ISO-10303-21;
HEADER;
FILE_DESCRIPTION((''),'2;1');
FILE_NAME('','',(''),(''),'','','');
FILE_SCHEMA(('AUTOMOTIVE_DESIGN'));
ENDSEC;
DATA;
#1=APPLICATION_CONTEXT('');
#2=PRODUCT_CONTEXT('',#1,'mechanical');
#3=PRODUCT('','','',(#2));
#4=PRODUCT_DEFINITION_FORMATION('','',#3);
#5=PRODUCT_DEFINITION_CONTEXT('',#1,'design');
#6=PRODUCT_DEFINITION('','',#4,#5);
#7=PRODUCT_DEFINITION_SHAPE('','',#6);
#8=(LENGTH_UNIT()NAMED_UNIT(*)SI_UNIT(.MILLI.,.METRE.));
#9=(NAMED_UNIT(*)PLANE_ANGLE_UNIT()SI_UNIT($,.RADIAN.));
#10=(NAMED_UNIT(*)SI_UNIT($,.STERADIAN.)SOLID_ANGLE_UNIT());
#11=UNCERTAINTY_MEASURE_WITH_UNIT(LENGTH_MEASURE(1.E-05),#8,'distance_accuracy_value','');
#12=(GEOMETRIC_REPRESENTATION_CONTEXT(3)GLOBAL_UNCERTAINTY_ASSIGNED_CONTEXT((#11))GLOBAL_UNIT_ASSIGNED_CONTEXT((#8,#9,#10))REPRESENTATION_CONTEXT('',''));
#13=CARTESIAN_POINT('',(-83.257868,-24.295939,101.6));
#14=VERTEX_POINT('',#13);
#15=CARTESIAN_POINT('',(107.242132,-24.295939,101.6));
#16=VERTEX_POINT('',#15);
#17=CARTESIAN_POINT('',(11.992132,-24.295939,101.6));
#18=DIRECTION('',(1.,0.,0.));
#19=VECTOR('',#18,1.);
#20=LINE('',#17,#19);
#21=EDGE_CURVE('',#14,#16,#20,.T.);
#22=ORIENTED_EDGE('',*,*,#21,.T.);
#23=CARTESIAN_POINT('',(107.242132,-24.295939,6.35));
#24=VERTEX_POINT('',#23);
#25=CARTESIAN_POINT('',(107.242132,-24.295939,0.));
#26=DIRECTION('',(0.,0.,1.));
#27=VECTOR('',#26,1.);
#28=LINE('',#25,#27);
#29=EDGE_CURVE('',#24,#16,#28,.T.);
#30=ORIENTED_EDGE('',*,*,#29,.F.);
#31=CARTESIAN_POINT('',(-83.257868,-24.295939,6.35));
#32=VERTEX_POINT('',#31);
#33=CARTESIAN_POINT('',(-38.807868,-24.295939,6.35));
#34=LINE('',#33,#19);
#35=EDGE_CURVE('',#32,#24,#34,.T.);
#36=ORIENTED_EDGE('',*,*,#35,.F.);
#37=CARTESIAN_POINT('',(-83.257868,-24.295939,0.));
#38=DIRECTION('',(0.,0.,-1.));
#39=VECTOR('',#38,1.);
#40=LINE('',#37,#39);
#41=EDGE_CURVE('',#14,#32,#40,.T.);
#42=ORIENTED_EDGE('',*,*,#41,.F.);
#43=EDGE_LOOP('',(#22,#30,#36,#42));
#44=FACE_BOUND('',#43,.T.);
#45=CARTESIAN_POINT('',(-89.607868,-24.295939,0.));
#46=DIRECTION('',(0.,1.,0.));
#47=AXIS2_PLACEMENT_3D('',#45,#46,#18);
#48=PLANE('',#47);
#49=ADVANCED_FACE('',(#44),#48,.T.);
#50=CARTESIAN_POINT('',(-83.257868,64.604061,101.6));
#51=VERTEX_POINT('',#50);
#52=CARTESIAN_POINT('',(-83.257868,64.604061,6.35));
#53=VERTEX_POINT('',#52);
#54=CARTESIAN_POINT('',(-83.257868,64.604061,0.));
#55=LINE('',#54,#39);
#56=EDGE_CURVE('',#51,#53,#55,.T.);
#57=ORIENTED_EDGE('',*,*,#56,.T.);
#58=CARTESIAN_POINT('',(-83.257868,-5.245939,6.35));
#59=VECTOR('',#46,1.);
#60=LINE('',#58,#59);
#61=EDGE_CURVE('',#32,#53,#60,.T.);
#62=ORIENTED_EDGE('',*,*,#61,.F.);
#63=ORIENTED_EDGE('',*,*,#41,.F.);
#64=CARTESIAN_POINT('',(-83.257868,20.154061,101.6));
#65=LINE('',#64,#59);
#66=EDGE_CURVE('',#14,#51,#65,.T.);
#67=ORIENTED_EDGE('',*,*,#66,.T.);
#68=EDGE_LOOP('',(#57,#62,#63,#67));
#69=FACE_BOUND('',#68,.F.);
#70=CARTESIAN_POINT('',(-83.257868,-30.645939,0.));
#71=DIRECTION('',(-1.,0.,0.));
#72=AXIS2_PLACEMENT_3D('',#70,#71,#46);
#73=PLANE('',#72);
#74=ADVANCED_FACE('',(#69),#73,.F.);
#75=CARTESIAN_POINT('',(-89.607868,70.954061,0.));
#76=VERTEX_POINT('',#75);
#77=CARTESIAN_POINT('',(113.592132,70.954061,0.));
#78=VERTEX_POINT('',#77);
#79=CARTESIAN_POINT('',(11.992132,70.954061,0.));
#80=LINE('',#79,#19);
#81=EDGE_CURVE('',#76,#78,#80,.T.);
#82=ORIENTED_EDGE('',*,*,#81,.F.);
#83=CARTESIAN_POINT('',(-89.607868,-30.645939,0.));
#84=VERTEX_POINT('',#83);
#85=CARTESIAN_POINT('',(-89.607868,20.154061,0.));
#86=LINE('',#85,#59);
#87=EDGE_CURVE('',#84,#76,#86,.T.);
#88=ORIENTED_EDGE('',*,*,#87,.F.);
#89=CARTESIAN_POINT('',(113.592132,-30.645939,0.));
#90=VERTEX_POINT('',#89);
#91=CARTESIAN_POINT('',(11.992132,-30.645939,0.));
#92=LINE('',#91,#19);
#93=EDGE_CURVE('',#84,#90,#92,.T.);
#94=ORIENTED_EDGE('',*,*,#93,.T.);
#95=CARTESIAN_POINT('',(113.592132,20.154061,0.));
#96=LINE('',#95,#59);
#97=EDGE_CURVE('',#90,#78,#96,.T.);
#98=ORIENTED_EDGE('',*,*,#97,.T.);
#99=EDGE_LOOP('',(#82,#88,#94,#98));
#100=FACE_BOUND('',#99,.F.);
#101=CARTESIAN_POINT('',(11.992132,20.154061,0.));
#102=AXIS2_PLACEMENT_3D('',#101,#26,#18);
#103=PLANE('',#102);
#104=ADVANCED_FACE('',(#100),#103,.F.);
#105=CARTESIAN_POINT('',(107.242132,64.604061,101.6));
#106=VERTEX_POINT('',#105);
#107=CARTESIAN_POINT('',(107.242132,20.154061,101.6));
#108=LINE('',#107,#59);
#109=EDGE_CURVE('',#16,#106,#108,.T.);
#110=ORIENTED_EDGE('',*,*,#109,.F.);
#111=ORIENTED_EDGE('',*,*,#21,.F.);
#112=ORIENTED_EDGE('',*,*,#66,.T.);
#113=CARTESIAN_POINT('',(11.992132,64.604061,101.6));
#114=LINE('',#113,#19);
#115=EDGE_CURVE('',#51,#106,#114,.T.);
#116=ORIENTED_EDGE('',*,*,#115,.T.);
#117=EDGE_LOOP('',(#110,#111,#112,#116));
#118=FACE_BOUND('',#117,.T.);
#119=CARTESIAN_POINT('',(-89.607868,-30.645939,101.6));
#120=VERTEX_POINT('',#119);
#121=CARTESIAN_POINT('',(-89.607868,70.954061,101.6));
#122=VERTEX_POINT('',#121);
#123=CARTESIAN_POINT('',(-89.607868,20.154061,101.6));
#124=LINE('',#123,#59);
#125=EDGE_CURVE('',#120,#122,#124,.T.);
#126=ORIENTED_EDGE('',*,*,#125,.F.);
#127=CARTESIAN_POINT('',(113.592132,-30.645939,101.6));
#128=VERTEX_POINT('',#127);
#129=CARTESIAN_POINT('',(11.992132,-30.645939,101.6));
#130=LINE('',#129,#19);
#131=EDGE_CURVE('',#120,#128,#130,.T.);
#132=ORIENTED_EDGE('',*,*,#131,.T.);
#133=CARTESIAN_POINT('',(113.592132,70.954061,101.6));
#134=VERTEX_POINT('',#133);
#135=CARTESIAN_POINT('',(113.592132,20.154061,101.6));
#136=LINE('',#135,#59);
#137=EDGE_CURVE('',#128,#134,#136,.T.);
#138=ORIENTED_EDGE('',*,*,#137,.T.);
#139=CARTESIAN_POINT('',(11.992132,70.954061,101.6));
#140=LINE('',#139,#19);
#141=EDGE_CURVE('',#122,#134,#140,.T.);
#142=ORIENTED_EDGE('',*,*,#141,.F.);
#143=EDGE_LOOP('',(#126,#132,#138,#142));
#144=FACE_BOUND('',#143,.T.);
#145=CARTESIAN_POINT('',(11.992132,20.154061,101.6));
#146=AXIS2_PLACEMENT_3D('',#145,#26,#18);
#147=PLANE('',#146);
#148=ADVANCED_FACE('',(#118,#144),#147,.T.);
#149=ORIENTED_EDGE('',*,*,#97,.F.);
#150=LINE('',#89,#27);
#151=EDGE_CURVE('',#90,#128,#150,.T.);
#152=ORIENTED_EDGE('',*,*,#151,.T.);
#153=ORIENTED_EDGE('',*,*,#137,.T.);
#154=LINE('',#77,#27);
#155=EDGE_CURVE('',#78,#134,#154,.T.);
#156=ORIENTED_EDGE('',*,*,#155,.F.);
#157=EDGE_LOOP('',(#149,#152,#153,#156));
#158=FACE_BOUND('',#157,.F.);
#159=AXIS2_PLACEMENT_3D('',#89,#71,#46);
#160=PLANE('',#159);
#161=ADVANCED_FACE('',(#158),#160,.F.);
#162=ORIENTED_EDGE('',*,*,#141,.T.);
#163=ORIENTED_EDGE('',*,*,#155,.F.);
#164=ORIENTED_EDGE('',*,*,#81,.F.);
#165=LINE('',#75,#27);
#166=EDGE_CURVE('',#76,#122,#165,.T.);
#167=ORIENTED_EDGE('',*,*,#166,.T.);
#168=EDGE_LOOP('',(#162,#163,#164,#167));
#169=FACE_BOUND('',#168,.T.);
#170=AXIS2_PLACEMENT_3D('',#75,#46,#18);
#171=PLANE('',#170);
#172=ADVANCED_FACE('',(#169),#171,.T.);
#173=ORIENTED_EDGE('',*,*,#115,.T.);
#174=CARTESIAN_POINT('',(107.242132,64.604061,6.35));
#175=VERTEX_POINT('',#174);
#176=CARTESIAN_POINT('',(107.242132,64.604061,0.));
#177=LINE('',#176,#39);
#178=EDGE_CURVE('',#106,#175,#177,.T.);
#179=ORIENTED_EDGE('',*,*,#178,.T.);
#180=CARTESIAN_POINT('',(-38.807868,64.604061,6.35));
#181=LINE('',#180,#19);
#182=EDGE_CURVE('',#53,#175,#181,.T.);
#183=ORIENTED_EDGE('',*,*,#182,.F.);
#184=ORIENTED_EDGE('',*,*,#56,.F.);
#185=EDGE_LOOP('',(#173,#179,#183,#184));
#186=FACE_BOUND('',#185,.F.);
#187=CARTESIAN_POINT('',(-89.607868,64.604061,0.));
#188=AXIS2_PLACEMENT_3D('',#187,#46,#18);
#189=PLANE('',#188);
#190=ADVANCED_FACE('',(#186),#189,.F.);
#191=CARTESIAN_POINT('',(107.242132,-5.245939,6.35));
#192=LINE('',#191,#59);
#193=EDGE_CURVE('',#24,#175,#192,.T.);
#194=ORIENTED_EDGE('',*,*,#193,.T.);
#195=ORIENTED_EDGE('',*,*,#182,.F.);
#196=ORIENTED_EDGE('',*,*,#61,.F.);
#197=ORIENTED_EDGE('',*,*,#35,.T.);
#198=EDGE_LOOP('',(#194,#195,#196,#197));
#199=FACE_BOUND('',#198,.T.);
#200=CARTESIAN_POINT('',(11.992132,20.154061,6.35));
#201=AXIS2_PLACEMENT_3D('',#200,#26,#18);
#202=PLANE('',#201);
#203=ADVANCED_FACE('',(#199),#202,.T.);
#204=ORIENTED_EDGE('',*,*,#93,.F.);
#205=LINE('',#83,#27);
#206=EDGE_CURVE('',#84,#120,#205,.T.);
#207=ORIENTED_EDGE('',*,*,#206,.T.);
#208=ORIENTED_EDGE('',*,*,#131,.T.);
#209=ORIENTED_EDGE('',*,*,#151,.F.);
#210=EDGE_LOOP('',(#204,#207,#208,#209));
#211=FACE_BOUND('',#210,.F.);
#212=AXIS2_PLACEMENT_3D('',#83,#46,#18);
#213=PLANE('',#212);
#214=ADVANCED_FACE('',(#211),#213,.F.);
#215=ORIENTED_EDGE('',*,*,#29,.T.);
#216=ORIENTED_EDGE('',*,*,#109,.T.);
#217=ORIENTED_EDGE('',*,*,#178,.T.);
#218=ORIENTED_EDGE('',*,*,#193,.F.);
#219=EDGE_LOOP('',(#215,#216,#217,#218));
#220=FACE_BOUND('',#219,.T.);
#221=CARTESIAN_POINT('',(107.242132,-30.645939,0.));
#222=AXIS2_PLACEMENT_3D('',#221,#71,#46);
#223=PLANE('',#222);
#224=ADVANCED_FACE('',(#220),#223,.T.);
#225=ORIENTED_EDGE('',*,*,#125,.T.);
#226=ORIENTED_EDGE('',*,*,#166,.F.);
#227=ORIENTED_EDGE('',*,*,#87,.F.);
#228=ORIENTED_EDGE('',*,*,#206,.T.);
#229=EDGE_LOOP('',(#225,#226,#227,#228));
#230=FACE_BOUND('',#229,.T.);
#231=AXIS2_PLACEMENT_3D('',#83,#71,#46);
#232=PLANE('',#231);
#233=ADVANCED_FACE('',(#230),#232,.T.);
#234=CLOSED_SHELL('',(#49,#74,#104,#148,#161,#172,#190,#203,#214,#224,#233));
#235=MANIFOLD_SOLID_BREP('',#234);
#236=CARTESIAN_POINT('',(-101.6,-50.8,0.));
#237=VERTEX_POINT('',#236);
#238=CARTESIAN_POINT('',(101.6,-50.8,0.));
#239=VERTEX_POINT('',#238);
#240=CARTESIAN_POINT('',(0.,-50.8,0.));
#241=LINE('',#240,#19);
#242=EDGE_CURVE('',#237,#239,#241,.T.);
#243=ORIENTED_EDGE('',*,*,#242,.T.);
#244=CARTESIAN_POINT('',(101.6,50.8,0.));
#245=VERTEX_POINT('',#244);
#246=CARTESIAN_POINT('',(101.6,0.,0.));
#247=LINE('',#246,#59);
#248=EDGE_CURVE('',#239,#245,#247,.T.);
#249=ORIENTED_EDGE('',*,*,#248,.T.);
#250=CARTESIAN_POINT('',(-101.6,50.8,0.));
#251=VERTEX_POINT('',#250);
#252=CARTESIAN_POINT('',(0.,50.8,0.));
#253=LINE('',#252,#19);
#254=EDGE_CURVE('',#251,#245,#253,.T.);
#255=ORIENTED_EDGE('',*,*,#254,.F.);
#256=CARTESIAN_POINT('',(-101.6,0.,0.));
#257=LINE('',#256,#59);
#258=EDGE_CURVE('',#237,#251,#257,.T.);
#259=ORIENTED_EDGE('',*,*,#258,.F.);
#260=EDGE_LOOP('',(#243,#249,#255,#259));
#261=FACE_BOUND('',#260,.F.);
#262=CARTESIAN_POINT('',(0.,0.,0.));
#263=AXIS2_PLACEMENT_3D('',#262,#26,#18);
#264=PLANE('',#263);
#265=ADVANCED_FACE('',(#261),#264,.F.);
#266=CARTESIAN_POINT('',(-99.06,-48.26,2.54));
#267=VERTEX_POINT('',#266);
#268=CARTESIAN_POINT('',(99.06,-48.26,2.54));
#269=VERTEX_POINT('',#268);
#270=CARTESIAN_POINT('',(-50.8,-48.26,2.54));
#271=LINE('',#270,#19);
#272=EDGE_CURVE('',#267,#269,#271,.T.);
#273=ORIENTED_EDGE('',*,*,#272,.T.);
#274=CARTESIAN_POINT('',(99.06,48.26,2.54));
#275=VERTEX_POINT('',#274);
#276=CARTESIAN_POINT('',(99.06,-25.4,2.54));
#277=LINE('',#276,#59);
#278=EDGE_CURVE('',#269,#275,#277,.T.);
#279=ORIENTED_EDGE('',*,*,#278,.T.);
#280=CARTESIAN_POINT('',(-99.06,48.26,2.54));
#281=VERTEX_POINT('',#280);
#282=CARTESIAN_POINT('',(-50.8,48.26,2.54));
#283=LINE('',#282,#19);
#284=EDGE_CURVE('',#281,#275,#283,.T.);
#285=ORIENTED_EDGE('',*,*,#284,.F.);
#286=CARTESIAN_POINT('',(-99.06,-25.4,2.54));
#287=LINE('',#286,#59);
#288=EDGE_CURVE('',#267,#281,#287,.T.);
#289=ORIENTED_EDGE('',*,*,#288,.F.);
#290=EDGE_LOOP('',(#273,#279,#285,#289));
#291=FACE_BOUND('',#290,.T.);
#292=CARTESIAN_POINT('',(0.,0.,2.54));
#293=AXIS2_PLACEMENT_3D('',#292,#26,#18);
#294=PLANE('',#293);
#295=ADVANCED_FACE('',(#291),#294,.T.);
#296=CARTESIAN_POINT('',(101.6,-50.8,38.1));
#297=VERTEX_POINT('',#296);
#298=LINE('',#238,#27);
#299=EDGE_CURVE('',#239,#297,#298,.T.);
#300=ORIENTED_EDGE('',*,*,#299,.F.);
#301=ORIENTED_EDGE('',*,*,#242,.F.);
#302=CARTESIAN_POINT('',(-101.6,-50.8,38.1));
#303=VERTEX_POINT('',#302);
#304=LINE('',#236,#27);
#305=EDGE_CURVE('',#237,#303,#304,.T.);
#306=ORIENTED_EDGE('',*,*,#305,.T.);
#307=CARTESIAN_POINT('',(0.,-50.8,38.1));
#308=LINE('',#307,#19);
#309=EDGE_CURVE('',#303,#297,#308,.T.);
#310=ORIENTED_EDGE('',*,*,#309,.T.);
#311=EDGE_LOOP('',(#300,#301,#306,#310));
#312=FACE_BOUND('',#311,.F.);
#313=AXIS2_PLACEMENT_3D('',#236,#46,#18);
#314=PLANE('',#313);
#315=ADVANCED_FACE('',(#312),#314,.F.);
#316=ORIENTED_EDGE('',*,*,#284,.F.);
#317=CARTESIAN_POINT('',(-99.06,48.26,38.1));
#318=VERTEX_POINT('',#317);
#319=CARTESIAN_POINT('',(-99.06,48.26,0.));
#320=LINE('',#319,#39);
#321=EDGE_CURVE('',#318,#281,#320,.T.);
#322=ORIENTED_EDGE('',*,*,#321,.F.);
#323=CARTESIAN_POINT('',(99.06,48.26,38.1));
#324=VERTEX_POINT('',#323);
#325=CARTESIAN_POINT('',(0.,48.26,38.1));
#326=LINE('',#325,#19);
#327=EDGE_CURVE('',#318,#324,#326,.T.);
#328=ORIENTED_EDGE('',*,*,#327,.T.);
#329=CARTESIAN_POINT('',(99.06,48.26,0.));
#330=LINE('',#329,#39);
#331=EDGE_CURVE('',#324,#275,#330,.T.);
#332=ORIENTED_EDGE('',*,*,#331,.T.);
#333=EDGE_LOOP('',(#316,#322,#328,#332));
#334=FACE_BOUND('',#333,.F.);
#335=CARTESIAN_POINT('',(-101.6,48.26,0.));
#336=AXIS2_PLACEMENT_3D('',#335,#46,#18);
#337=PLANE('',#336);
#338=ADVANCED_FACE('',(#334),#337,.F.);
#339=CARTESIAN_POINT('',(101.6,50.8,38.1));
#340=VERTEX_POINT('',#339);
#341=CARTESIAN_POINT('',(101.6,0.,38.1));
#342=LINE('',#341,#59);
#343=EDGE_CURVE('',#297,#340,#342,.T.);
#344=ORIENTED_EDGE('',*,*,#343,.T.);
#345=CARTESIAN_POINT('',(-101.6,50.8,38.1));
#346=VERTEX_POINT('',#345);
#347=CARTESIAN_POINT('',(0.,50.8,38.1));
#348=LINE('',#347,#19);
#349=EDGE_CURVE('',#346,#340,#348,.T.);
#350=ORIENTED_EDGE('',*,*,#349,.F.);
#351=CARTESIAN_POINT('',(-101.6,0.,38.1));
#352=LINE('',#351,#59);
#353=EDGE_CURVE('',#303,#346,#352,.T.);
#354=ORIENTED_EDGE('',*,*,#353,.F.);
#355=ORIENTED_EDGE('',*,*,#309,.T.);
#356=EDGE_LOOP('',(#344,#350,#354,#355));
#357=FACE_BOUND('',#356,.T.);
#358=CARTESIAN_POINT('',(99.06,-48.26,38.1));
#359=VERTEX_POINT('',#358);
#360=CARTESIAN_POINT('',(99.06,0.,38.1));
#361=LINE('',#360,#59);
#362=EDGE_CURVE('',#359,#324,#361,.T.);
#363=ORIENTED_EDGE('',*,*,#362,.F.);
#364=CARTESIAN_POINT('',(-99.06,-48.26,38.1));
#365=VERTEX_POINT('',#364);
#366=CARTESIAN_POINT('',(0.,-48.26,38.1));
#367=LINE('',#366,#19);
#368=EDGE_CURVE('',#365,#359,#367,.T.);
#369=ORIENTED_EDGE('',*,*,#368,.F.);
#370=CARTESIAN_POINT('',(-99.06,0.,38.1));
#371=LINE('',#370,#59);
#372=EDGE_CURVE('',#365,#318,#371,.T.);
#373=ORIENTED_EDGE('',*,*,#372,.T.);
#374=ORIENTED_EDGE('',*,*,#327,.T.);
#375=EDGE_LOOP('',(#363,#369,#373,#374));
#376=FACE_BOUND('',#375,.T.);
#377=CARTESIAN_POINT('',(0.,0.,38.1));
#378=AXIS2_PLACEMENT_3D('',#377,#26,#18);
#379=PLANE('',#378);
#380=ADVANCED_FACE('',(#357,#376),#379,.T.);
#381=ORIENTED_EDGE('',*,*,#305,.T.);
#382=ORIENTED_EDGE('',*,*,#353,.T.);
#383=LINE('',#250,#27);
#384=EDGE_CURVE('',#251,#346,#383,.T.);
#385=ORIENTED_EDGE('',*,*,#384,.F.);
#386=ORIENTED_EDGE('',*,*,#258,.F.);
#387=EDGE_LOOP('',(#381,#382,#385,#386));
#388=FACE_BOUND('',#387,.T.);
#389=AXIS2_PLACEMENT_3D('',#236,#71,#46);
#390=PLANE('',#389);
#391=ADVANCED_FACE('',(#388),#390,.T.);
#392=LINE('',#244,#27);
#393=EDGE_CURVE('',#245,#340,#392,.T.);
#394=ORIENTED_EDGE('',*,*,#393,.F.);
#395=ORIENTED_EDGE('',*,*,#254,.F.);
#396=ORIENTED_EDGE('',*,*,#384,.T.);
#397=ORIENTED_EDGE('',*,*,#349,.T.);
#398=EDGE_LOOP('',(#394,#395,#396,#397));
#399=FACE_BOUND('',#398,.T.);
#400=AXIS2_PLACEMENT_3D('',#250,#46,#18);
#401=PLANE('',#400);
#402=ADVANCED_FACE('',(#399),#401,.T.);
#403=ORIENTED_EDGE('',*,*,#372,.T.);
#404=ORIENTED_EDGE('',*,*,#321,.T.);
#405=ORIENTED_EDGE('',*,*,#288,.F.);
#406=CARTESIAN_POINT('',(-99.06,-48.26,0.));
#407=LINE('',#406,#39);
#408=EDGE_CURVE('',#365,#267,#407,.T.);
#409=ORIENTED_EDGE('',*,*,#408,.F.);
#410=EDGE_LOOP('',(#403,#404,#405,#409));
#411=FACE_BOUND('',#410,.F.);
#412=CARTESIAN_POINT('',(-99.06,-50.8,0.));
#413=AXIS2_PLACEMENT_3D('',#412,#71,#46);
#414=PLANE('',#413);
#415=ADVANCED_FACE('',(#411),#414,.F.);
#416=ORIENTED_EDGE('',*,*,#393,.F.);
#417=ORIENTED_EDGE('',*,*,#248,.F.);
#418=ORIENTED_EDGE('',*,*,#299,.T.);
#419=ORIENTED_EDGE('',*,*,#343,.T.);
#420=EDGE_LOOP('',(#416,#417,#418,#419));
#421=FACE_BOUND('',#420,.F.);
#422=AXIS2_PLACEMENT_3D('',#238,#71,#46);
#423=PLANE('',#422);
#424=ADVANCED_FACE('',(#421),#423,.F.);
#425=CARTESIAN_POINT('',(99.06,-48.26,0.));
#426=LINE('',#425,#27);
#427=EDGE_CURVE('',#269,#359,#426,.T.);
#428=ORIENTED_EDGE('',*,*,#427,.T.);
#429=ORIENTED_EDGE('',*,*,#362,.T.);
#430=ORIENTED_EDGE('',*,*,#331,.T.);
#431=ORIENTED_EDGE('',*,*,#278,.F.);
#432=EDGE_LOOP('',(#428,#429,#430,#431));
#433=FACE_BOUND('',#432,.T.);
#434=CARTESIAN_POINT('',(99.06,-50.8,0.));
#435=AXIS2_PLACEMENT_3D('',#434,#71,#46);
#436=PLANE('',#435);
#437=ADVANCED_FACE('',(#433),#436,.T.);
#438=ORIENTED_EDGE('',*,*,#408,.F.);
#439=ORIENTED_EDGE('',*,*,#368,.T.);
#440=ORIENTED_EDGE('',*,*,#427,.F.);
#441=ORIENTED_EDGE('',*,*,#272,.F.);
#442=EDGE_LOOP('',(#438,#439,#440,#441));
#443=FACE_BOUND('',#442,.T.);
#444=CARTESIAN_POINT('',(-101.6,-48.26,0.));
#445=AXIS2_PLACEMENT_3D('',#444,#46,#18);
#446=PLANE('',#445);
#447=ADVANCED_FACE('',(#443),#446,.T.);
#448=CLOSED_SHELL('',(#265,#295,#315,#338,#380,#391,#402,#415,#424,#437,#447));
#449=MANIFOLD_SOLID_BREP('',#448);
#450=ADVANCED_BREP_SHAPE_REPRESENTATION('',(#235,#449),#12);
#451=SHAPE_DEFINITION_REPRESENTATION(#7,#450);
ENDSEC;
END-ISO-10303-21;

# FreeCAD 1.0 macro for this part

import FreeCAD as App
import Part
import Sketcher
from FreeCAD import Vector
Q = App.Units.Quantity


def faces_at(feature, points):
    """Names of the faces that lie closest to the given points."""
    faces = feature.Shape.Faces
    near = lambda p: min(range(len(faces)), key=lambda i: faces[i].distToShape(Part.Vertex(*p))[0])
    return sorted({f"Face{near(p) + 1}" for p in points})


def add_polygon(sketch, points):
    """Adds a closed chain of lines whose ends are joined by coincident constraints."""
    first, n = sketch.GeometryCount, len(points)
    for a, b in zip(points, points[1:] + points[:1]):
        sketch.addGeometry(Part.LineSegment(App.Vector(*a, 0), App.Vector(*b, 0)), False)
    for i in range(n):
        sketch.addConstraint(Sketcher.Constraint("Coincident", first + i, 2, first + (i + 1) % n, 1))

doc = App.newDocument("Part")
body = doc.addObject("PartDesign::Body", "Body")

# Sketch on XY plane
sketch1 = doc.addObject("Sketcher::SketchObject", "Sketch")
body.addObject(sketch1)
sketch1.AttachmentSupport = (doc.XY_Plane, [""])
sketch1.MapMode = "FlatFace"
add_polygon(sketch1, [(-90, 71), (-90, -31), (114, -31), (114, 71)])  # lines 0-3
sketch1.addConstraint([
    Sketcher.Constraint("Vertical", 0),
    Sketcher.Constraint("Horizontal", 1),
    Sketcher.Constraint("Vertical", 2),
    Sketcher.Constraint("Horizontal", 3),
    Sketcher.Constraint("DistanceX", 1, 1, 1, 2, Q("8 in")),
    Sketcher.Constraint("DistanceY", 0, 2, 0, 1, Q("4 in")),
    Sketcher.Constraint("DistanceY", 0, 2, -1, 1, 30.645939),
    Sketcher.Constraint("DistanceX", 0, 2, -1, 1, 89.607868),
])
pad1 = doc.addObject("PartDesign::Pad", "Pad")
body.addObject(pad1)
pad1.Profile = sketch1
pad1.Length = Q("4 in")
doc.recompute()

thickness = doc.addObject("PartDesign::Thickness", "Thickness")
body.addObject(thickness)
thickness.Base = (pad1, faces_at(pad1, [(11.992, 20.154, 101.6)]))
thickness.Value = Q("0.25 in")
thickness.Reversed = True
thickness.Join = "Arc"
body2 = doc.addObject("PartDesign::Body", "Body001")

# Sketch on XY plane
sketch2 = doc.addObject("Sketcher::SketchObject", "Sketch001")
body2.addObject(sketch2)
sketch2.AttachmentSupport = (doc.getObject("XY_Plane001"), [""])
sketch2.MapMode = "FlatFace"
add_polygon(sketch2, [(-102, 51), (-102, -51), (102, -51), (102, 51)])  # lines 0-3
sketch2.addConstraint([
    Sketcher.Constraint("Vertical", 0),
    Sketcher.Constraint("Horizontal", 1),
    Sketcher.Constraint("Vertical", 2),
    Sketcher.Constraint("Horizontal", 3),
    Sketcher.Constraint("Symmetric", 0, 2, 2, 2, -1, 1),
    Sketcher.Constraint("DistanceX", 1, 1, 1, 2, Q("8 in")),
    Sketcher.Constraint("DistanceY", 0, 2, 0, 1, Q("4 in")),
])
pad2 = doc.addObject("PartDesign::Pad", "Pad001")
body2.addObject(pad2)
pad2.Profile = sketch2
pad2.Length = Q("1.5 in")
doc.recompute()

thickness2 = doc.addObject("PartDesign::Thickness", "Thickness001")
body2.addObject(thickness2)
thickness2.Base = (pad2, faces_at(pad2, [(0, 0, 38.1)]))
thickness2.Value = Q("0.1 in")
thickness2.Reversed = True
thickness2.Join = "Arc"

doc.recompute()
